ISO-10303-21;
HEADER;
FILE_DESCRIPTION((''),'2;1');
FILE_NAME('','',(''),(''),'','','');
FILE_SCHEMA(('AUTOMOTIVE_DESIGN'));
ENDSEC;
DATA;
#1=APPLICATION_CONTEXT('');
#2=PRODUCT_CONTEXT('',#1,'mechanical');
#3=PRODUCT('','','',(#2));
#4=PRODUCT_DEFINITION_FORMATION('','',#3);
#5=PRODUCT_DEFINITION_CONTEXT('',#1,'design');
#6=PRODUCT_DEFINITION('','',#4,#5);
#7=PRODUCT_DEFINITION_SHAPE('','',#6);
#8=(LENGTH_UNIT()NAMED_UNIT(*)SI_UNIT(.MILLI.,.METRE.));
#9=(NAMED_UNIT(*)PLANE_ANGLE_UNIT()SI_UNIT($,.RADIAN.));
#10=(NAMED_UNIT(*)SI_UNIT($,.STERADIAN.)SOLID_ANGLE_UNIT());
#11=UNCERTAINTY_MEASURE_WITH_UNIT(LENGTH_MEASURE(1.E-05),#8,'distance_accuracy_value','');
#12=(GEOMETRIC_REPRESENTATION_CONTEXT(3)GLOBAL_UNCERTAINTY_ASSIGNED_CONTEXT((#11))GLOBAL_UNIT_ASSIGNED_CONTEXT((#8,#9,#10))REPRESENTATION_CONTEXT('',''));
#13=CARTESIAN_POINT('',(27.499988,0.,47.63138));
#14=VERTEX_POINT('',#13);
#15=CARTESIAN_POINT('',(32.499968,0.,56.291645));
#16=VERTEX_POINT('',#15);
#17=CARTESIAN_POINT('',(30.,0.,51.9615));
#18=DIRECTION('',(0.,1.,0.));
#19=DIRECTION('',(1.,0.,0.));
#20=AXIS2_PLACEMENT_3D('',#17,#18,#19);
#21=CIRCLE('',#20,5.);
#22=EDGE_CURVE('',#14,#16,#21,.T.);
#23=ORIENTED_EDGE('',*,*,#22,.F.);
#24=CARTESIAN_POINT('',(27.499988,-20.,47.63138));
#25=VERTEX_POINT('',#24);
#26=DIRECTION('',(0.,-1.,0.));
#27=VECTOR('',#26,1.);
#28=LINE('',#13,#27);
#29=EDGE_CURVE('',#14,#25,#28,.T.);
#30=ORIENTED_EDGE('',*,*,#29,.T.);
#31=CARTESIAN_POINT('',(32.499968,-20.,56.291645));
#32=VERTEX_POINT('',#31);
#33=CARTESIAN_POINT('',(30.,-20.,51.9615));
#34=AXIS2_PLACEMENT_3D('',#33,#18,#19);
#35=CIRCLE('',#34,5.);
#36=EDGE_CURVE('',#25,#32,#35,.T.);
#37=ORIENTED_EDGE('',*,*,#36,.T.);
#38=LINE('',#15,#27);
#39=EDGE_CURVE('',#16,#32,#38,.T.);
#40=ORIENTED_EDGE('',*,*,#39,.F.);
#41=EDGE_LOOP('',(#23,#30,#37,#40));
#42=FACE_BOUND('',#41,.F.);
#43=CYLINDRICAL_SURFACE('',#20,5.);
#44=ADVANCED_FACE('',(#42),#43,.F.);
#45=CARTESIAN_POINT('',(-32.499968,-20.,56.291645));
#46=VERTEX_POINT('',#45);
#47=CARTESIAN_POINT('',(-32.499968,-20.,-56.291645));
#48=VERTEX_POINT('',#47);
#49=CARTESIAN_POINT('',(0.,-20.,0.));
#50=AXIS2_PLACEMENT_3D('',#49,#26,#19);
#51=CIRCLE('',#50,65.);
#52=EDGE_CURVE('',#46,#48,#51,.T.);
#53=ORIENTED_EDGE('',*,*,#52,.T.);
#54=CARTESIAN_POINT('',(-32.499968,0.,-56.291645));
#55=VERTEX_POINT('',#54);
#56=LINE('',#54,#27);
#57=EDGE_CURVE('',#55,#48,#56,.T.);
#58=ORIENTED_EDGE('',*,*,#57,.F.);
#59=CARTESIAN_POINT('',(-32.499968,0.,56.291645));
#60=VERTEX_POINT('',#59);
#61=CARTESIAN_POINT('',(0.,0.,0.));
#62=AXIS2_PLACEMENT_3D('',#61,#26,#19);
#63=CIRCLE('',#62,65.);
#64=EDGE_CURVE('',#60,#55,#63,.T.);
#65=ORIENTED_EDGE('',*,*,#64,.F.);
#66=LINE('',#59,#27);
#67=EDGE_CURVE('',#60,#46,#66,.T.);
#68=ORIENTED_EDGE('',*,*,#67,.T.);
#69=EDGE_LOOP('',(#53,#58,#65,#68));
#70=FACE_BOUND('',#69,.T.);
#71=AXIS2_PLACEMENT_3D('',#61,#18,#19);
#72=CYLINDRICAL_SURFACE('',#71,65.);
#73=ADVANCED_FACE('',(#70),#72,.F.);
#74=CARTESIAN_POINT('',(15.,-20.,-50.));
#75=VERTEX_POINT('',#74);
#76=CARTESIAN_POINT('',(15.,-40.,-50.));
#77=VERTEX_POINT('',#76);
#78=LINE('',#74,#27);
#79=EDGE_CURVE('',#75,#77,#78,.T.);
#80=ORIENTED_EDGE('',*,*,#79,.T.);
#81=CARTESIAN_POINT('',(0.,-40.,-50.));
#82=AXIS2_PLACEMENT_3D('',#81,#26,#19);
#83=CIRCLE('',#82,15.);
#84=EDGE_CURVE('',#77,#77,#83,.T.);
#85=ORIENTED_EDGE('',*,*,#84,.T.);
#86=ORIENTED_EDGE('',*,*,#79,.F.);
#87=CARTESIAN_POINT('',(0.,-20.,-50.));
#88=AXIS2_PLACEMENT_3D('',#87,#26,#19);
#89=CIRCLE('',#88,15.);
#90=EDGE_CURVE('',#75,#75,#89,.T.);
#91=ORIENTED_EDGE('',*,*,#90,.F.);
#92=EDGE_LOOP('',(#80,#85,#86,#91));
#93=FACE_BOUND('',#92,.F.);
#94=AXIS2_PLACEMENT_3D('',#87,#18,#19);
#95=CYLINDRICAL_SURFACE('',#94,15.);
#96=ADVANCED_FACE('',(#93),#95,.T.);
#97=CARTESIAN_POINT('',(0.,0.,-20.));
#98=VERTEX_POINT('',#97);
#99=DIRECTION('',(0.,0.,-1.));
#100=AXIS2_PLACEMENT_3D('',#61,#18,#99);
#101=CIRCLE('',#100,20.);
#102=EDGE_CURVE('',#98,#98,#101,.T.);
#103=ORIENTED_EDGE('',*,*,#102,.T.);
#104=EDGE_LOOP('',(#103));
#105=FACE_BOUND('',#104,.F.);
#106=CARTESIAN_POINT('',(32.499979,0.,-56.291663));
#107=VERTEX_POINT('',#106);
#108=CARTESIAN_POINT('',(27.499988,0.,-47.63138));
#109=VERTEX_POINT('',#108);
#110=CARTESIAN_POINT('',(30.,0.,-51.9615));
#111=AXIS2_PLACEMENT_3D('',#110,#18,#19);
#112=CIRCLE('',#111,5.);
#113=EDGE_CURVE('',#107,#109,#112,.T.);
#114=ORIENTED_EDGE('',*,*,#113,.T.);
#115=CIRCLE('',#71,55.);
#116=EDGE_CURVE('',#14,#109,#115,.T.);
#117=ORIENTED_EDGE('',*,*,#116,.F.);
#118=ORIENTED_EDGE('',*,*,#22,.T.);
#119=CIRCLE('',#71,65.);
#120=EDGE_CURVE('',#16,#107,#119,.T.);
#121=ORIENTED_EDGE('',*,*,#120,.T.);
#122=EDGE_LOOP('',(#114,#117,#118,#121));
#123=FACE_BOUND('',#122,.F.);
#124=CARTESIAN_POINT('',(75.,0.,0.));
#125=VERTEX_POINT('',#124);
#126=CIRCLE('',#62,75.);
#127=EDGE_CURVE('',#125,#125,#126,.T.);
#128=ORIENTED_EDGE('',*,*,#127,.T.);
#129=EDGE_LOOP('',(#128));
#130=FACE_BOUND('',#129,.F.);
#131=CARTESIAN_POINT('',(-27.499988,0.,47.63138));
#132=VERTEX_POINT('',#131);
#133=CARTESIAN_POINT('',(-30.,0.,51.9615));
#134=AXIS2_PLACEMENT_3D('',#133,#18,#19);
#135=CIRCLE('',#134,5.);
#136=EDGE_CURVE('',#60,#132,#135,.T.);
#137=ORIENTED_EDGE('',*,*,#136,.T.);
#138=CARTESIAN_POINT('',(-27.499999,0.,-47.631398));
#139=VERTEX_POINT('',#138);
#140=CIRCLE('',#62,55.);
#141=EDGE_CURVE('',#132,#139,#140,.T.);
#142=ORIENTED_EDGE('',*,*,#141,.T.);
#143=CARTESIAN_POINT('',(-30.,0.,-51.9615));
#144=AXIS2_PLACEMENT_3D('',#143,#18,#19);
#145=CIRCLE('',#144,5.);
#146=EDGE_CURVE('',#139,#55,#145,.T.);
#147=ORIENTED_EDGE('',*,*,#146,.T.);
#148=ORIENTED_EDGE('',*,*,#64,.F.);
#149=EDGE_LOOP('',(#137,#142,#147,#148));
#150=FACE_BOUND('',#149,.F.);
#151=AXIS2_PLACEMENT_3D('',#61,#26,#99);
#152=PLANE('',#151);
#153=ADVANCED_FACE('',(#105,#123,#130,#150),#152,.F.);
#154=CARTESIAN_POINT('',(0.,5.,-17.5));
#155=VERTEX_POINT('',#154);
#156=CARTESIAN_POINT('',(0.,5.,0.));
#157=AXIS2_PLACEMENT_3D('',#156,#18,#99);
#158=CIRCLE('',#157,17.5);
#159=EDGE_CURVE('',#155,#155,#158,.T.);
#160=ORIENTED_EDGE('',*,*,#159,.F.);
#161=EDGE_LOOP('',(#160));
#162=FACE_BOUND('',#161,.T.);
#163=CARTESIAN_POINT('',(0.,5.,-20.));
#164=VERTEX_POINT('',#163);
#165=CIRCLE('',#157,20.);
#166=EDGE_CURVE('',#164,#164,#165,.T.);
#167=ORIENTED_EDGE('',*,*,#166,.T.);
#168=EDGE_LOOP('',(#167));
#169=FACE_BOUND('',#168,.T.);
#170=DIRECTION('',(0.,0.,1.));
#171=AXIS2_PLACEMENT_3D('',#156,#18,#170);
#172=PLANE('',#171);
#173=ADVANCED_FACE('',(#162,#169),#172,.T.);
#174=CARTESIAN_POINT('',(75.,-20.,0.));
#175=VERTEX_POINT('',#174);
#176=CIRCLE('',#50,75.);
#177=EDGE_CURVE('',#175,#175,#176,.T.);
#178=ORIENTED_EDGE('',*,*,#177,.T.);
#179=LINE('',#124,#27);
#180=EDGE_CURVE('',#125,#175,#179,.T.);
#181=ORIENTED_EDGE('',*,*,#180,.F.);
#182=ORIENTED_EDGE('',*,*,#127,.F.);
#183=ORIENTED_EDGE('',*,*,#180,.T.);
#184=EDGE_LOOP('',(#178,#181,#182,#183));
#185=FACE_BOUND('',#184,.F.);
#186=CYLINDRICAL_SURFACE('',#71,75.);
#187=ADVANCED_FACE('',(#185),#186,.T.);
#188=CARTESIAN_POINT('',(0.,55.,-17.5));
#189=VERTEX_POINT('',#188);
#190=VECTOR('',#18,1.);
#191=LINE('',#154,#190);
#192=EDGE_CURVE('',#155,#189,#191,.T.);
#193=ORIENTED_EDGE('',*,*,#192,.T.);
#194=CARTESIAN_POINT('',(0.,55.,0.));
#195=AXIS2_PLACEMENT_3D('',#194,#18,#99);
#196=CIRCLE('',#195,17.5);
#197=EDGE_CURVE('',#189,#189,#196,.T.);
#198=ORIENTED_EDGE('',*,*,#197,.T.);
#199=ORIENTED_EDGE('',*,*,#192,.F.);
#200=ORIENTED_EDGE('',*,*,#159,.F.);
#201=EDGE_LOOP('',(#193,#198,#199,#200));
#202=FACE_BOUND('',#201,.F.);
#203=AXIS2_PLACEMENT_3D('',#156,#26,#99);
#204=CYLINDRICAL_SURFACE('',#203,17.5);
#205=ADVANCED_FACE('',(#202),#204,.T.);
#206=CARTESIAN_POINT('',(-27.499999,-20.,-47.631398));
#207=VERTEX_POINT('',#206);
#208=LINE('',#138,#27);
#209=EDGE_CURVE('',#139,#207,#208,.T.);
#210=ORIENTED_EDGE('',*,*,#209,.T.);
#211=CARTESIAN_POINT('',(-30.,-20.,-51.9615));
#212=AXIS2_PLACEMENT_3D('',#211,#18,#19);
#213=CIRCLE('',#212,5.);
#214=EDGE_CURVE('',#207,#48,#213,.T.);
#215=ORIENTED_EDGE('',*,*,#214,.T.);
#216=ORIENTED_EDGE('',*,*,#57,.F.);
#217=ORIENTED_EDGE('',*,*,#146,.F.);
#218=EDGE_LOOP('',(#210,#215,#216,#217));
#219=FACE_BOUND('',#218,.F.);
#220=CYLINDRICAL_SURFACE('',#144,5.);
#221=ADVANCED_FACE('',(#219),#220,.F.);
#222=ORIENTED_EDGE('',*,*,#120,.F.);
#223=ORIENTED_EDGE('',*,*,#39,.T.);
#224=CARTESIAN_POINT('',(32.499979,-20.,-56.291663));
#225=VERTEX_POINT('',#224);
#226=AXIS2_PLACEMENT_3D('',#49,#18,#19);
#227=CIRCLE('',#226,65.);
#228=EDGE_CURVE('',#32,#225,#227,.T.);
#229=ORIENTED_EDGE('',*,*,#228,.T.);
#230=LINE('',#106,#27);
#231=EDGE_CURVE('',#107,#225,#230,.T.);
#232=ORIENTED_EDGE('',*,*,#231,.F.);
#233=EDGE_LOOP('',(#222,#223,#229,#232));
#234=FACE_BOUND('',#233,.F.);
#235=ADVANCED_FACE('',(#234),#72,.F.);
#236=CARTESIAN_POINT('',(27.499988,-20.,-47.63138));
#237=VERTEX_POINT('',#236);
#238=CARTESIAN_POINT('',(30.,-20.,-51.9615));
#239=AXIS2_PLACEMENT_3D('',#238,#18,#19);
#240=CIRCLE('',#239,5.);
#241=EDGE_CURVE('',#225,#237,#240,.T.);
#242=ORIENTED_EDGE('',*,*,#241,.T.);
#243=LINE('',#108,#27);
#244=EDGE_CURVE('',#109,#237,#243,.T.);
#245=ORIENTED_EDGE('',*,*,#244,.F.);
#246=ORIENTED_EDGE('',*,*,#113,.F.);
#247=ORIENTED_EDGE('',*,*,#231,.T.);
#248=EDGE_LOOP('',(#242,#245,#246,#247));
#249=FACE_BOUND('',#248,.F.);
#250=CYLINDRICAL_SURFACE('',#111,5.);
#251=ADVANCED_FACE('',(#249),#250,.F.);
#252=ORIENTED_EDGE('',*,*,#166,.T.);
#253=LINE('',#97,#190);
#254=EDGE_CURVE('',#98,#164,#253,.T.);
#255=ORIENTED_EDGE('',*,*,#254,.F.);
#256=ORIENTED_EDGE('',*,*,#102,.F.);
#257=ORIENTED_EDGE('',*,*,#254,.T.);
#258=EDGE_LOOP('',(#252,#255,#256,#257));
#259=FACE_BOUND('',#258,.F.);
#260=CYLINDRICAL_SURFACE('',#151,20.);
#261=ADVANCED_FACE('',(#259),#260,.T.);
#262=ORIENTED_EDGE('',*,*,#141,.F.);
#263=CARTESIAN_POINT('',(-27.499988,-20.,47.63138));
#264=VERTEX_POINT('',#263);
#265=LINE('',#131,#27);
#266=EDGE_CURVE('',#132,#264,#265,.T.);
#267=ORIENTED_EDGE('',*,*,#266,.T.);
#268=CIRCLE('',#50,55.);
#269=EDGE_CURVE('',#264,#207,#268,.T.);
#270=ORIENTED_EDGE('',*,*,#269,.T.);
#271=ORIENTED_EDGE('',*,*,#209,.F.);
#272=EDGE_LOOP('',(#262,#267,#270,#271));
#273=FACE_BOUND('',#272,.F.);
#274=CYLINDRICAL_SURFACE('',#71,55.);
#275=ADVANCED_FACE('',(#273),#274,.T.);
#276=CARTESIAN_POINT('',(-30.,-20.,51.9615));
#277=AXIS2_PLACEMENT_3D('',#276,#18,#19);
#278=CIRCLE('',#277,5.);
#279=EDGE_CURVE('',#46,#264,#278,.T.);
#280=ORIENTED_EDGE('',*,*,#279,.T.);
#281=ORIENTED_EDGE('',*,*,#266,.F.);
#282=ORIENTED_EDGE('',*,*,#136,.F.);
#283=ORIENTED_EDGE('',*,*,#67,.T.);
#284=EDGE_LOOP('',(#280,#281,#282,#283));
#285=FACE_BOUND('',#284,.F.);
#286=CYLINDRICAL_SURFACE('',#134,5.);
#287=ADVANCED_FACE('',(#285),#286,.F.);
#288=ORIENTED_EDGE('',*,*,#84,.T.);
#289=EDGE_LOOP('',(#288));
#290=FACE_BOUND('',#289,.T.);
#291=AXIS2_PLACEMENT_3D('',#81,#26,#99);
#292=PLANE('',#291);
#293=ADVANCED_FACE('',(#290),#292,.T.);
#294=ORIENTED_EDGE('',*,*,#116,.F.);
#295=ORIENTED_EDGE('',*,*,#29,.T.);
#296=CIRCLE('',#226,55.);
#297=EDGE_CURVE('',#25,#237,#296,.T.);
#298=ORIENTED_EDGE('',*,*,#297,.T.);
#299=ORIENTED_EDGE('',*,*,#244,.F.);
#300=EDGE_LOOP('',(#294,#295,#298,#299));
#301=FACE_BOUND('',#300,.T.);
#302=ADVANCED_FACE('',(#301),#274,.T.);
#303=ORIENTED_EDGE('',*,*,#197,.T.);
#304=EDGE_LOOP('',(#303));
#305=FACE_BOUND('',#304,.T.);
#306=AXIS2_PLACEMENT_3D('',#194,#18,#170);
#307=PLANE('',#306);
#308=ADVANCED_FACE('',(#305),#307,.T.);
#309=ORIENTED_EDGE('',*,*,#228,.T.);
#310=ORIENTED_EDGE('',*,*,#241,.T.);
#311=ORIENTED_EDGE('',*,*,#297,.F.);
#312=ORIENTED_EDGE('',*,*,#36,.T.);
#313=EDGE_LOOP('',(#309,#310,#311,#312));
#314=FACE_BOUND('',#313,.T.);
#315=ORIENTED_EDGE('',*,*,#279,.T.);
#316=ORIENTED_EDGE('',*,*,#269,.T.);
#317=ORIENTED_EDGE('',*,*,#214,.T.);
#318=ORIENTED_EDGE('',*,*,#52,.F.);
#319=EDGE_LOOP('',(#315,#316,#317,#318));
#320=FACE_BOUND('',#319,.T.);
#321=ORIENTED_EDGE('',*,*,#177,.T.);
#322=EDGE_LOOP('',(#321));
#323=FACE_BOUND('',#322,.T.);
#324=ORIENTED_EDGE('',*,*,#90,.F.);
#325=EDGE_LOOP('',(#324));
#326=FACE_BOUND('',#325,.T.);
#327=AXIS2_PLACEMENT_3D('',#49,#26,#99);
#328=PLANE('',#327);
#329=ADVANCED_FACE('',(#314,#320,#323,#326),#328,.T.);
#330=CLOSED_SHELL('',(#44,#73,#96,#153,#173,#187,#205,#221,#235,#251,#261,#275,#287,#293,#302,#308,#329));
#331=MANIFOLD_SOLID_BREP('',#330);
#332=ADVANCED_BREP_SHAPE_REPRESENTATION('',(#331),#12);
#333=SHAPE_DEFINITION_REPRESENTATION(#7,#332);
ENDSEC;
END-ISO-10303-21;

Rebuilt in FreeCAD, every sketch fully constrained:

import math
import FreeCAD as App
import Part
import Sketcher
from FreeCAD import Vector

doc = App.newDocument("Part")
body = doc.addObject("PartDesign::Body", "Body")

# Sketch on XZ plane
sketch1 = doc.addObject("Sketcher::SketchObject", "Sketch")
body.addObject(sketch1)
sketch1.AttachmentSupport = (doc.XZ_Plane, [""])
sketch1.MapMode = "FlatFace"
sketch1.addGeometry(Part.Circle(Vector(0, 0, 0), Vector(0, 0, 1), 75), False)
sketch1.addGeometry(Part.ArcOfCircle(Part.Circle(Vector(0, 0, 0), Vector(0, 0, 1), 55.000002), math.radians(-60.000001), math.radians(60.000001)), False)
sketch1.addGeometry(Part.ArcOfCircle(Part.Circle(Vector(30, 51.9615, 0), Vector(0, 0, 1), 4.999977), math.radians(60.000418), math.radians(239.999845)), False)
sketch1.addGeometry(Part.ArcOfCircle(Part.Circle(Vector(0, 0, 0), Vector(0, 0, 1), 65.000042), math.radians(-60.000021), math.radians(60.000021)), False)
sketch1.addGeometry(Part.ArcOfCircle(Part.Circle(Vector(30, -51.9615, 0), Vector(0, 0, 1), 5.000063), math.radians(120.000155), math.radians(299.999582)), False)
sketch1.addGeometry(Part.ArcOfCircle(Part.Circle(Vector(0, 0, 0), Vector(0, 0, 1), 65.000042), math.radians(119.999979), math.radians(240.000021)), False)
sketch1.addGeometry(Part.ArcOfCircle(Part.Circle(Vector(-30, 51.9615, 0), Vector(0, 0, 1), 5.000063), math.radians(-59.999845), math.radians(119.999582)), False)
sketch1.addGeometry(Part.ArcOfCircle(Part.Circle(Vector(0, 0, 0), Vector(0, 0, 1), 55.000002), math.radians(119.999999), math.radians(240.000001)), False)
sketch1.addGeometry(Part.ArcOfCircle(Part.Circle(Vector(-30, -51.9615, 0), Vector(0, 0, 1), 4.999977), math.radians(-119.999582), math.radians(59.999845)), False)
sketch1.addConstraint(Sketcher.Constraint("Tangent", 1, 2, 2, 2))
sketch1.addConstraint(Sketcher.Constraint("Tangent", 2, 1, 3, 2))
sketch1.addConstraint(Sketcher.Constraint("Tangent", 3, 1, 4, 2))
sketch1.addConstraint(Sketcher.Constraint("Tangent", 4, 1, 1, 1))
sketch1.addConstraint(Sketcher.Constraint("Tangent", 5, 1, 6, 2))
sketch1.addConstraint(Sketcher.Constraint("Tangent", 6, 1, 7, 1))
sketch1.addConstraint(Sketcher.Constraint("Tangent", 7, 2, 8, 2))
sketch1.addConstraint(Sketcher.Constraint("Tangent", 8, 1, 5, 2))
sketch1.addConstraint(Sketcher.Constraint("Coincident", 0, 3, -1, 1))
sketch1.addConstraint(Sketcher.Constraint("Coincident", 1, 3, -1, 1))
sketch1.addConstraint(Sketcher.Constraint("Coincident", 3, 3, -1, 1))
sketch1.addConstraint(Sketcher.Constraint("Coincident", 5, 3, -1, 1))
sketch1.addConstraint(Sketcher.Constraint("Coincident", 7, 3, -1, 1))
sketch1.addConstraint(Sketcher.Constraint("Equal", 3, 5))
sketch1.addConstraint(Sketcher.Constraint("Equal", 4, 6))
sketch1.addConstraint(Sketcher.Constraint("Horizontal", 2, 3, 6, 3))
sketch1.addConstraint(Sketcher.Constraint("Horizontal", 4, 3, 8, 3))
sketch1.addConstraint(Sketcher.Constraint("Vertical", 2, 3, 4, 3))
sketch1.addConstraint(Sketcher.Constraint("Diameter", 0, 150.0))
sketch1.addConstraint(Sketcher.Constraint("Radius", 1, 55.0))
sketch1.addConstraint(Sketcher.Constraint("Radius", 2, 5.0))
sketch1.addConstraint(Sketcher.Constraint("DistanceX", -1, 1, 2, 3, 30.0))
pad1 = doc.addObject("PartDesign::Pad", "Pad")
body.addObject(pad1)
pad1.Profile = sketch1
pad1.Length = 20

# Sketch on XZ plane
sketch2 = doc.addObject("Sketcher::SketchObject", "Sketch001")
body.addObject(sketch2)
sketch2.AttachmentSupport = (doc.XZ_Plane, [""])
sketch2.MapMode = "FlatFace"
sketch2.AttachmentOffset = App.Placement(Vector(0, 0, 20), App.Rotation())
sketch2.addGeometry(Part.Circle(Vector(0, -50, 0), Vector(0, 0, 1), 15), False)
sketch2.addConstraint(Sketcher.Constraint("PointOnObject", 0, 3, -2))
sketch2.addConstraint(Sketcher.Constraint("Diameter", 0, 30.0))
sketch2.addConstraint(Sketcher.Constraint("DistanceY", 0, 3, -1, 1, 50.0))
pad2 = doc.addObject("PartDesign::Pad", "Pad001")
body.addObject(pad2)
pad2.Profile = sketch2
pad2.Length = 20

# Sketch on XZ plane
sketch3 = doc.addObject("Sketcher::SketchObject", "Sketch002")
body.addObject(sketch3)
sketch3.AttachmentSupport = (doc.XZ_Plane, [""])
sketch3.MapMode = "FlatFace"
sketch3.addGeometry(Part.Circle(Vector(0, 0, 0), Vector(0, 0, 1), 20), False)
sketch3.addConstraint(Sketcher.Constraint("Coincident", 0, 3, -1, 1))
sketch3.addConstraint(Sketcher.Constraint("Diameter", 0, 40.0))
pad3 = doc.addObject("PartDesign::Pad", "Pad002")
body.addObject(pad3)
pad3.Profile = sketch3
pad3.Length = 5
pad3.Reversed = True

# Sketch on XZ plane
sketch4 = doc.addObject("Sketcher::SketchObject", "Sketch003")
body.addObject(sketch4)
sketch4.AttachmentSupport = (doc.XZ_Plane, [""])
sketch4.MapMode = "FlatFace"
sketch4.AttachmentOffset = App.Placement(Vector(0, 0, -5), App.Rotation())
sketch4.addGeometry(Part.Circle(Vector(0, 0, 0), Vector(0, 0, 1), 17.5), False)
sketch4.addConstraint(Sketcher.Constraint("Coincident", 0, 3, -1, 1))
sketch4.addConstraint(Sketcher.Constraint("Diameter", 0, 35.0))
pad4 = doc.addObject("PartDesign::Pad", "Pad003")
body.addObject(pad4)
pad4.Profile = sketch4
pad4.Length = 50
pad4.Reversed = True

doc.recompute()
